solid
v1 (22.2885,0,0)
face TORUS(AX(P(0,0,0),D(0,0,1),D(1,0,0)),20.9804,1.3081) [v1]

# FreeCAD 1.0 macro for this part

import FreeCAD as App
import Part
import Sketcher

V = App.Vector
Q = App.Units.Quantity

doc = App.newDocument("Part")
body = doc.addObject("PartDesign::Body", "Body")

# Sketch on YZ plane
sketch1 = doc.addObject("Sketcher::SketchObject", "Sketch")
body.addObject(sketch1)
sketch1.AttachmentSupport = (doc.YZ_Plane, [""])
sketch1.MapMode = "FlatFace"
sketch1.addGeometry(Part.Circle(V(-20.9804, 0, 0), V(0, 0, 1), 1.3081), False)
sketch1.addConstraint([
    Sketcher.Constraint("PointOnObject", 0, 3, -1),
    Sketcher.Constraint("Diameter", 0, Q("0.103 in")),
    Sketcher.Constraint("DistanceX", 0, 3, -1, 1, Q("0.826 in")),
])
revolution = doc.addObject("PartDesign::Revolution", "Revolution")
body.addObject(revolution)
revolution.Profile = sketch1
revolution.ReferenceAxis = (sketch1, ["V_Axis"])
revolution.Angle = 360

doc.recompute()
